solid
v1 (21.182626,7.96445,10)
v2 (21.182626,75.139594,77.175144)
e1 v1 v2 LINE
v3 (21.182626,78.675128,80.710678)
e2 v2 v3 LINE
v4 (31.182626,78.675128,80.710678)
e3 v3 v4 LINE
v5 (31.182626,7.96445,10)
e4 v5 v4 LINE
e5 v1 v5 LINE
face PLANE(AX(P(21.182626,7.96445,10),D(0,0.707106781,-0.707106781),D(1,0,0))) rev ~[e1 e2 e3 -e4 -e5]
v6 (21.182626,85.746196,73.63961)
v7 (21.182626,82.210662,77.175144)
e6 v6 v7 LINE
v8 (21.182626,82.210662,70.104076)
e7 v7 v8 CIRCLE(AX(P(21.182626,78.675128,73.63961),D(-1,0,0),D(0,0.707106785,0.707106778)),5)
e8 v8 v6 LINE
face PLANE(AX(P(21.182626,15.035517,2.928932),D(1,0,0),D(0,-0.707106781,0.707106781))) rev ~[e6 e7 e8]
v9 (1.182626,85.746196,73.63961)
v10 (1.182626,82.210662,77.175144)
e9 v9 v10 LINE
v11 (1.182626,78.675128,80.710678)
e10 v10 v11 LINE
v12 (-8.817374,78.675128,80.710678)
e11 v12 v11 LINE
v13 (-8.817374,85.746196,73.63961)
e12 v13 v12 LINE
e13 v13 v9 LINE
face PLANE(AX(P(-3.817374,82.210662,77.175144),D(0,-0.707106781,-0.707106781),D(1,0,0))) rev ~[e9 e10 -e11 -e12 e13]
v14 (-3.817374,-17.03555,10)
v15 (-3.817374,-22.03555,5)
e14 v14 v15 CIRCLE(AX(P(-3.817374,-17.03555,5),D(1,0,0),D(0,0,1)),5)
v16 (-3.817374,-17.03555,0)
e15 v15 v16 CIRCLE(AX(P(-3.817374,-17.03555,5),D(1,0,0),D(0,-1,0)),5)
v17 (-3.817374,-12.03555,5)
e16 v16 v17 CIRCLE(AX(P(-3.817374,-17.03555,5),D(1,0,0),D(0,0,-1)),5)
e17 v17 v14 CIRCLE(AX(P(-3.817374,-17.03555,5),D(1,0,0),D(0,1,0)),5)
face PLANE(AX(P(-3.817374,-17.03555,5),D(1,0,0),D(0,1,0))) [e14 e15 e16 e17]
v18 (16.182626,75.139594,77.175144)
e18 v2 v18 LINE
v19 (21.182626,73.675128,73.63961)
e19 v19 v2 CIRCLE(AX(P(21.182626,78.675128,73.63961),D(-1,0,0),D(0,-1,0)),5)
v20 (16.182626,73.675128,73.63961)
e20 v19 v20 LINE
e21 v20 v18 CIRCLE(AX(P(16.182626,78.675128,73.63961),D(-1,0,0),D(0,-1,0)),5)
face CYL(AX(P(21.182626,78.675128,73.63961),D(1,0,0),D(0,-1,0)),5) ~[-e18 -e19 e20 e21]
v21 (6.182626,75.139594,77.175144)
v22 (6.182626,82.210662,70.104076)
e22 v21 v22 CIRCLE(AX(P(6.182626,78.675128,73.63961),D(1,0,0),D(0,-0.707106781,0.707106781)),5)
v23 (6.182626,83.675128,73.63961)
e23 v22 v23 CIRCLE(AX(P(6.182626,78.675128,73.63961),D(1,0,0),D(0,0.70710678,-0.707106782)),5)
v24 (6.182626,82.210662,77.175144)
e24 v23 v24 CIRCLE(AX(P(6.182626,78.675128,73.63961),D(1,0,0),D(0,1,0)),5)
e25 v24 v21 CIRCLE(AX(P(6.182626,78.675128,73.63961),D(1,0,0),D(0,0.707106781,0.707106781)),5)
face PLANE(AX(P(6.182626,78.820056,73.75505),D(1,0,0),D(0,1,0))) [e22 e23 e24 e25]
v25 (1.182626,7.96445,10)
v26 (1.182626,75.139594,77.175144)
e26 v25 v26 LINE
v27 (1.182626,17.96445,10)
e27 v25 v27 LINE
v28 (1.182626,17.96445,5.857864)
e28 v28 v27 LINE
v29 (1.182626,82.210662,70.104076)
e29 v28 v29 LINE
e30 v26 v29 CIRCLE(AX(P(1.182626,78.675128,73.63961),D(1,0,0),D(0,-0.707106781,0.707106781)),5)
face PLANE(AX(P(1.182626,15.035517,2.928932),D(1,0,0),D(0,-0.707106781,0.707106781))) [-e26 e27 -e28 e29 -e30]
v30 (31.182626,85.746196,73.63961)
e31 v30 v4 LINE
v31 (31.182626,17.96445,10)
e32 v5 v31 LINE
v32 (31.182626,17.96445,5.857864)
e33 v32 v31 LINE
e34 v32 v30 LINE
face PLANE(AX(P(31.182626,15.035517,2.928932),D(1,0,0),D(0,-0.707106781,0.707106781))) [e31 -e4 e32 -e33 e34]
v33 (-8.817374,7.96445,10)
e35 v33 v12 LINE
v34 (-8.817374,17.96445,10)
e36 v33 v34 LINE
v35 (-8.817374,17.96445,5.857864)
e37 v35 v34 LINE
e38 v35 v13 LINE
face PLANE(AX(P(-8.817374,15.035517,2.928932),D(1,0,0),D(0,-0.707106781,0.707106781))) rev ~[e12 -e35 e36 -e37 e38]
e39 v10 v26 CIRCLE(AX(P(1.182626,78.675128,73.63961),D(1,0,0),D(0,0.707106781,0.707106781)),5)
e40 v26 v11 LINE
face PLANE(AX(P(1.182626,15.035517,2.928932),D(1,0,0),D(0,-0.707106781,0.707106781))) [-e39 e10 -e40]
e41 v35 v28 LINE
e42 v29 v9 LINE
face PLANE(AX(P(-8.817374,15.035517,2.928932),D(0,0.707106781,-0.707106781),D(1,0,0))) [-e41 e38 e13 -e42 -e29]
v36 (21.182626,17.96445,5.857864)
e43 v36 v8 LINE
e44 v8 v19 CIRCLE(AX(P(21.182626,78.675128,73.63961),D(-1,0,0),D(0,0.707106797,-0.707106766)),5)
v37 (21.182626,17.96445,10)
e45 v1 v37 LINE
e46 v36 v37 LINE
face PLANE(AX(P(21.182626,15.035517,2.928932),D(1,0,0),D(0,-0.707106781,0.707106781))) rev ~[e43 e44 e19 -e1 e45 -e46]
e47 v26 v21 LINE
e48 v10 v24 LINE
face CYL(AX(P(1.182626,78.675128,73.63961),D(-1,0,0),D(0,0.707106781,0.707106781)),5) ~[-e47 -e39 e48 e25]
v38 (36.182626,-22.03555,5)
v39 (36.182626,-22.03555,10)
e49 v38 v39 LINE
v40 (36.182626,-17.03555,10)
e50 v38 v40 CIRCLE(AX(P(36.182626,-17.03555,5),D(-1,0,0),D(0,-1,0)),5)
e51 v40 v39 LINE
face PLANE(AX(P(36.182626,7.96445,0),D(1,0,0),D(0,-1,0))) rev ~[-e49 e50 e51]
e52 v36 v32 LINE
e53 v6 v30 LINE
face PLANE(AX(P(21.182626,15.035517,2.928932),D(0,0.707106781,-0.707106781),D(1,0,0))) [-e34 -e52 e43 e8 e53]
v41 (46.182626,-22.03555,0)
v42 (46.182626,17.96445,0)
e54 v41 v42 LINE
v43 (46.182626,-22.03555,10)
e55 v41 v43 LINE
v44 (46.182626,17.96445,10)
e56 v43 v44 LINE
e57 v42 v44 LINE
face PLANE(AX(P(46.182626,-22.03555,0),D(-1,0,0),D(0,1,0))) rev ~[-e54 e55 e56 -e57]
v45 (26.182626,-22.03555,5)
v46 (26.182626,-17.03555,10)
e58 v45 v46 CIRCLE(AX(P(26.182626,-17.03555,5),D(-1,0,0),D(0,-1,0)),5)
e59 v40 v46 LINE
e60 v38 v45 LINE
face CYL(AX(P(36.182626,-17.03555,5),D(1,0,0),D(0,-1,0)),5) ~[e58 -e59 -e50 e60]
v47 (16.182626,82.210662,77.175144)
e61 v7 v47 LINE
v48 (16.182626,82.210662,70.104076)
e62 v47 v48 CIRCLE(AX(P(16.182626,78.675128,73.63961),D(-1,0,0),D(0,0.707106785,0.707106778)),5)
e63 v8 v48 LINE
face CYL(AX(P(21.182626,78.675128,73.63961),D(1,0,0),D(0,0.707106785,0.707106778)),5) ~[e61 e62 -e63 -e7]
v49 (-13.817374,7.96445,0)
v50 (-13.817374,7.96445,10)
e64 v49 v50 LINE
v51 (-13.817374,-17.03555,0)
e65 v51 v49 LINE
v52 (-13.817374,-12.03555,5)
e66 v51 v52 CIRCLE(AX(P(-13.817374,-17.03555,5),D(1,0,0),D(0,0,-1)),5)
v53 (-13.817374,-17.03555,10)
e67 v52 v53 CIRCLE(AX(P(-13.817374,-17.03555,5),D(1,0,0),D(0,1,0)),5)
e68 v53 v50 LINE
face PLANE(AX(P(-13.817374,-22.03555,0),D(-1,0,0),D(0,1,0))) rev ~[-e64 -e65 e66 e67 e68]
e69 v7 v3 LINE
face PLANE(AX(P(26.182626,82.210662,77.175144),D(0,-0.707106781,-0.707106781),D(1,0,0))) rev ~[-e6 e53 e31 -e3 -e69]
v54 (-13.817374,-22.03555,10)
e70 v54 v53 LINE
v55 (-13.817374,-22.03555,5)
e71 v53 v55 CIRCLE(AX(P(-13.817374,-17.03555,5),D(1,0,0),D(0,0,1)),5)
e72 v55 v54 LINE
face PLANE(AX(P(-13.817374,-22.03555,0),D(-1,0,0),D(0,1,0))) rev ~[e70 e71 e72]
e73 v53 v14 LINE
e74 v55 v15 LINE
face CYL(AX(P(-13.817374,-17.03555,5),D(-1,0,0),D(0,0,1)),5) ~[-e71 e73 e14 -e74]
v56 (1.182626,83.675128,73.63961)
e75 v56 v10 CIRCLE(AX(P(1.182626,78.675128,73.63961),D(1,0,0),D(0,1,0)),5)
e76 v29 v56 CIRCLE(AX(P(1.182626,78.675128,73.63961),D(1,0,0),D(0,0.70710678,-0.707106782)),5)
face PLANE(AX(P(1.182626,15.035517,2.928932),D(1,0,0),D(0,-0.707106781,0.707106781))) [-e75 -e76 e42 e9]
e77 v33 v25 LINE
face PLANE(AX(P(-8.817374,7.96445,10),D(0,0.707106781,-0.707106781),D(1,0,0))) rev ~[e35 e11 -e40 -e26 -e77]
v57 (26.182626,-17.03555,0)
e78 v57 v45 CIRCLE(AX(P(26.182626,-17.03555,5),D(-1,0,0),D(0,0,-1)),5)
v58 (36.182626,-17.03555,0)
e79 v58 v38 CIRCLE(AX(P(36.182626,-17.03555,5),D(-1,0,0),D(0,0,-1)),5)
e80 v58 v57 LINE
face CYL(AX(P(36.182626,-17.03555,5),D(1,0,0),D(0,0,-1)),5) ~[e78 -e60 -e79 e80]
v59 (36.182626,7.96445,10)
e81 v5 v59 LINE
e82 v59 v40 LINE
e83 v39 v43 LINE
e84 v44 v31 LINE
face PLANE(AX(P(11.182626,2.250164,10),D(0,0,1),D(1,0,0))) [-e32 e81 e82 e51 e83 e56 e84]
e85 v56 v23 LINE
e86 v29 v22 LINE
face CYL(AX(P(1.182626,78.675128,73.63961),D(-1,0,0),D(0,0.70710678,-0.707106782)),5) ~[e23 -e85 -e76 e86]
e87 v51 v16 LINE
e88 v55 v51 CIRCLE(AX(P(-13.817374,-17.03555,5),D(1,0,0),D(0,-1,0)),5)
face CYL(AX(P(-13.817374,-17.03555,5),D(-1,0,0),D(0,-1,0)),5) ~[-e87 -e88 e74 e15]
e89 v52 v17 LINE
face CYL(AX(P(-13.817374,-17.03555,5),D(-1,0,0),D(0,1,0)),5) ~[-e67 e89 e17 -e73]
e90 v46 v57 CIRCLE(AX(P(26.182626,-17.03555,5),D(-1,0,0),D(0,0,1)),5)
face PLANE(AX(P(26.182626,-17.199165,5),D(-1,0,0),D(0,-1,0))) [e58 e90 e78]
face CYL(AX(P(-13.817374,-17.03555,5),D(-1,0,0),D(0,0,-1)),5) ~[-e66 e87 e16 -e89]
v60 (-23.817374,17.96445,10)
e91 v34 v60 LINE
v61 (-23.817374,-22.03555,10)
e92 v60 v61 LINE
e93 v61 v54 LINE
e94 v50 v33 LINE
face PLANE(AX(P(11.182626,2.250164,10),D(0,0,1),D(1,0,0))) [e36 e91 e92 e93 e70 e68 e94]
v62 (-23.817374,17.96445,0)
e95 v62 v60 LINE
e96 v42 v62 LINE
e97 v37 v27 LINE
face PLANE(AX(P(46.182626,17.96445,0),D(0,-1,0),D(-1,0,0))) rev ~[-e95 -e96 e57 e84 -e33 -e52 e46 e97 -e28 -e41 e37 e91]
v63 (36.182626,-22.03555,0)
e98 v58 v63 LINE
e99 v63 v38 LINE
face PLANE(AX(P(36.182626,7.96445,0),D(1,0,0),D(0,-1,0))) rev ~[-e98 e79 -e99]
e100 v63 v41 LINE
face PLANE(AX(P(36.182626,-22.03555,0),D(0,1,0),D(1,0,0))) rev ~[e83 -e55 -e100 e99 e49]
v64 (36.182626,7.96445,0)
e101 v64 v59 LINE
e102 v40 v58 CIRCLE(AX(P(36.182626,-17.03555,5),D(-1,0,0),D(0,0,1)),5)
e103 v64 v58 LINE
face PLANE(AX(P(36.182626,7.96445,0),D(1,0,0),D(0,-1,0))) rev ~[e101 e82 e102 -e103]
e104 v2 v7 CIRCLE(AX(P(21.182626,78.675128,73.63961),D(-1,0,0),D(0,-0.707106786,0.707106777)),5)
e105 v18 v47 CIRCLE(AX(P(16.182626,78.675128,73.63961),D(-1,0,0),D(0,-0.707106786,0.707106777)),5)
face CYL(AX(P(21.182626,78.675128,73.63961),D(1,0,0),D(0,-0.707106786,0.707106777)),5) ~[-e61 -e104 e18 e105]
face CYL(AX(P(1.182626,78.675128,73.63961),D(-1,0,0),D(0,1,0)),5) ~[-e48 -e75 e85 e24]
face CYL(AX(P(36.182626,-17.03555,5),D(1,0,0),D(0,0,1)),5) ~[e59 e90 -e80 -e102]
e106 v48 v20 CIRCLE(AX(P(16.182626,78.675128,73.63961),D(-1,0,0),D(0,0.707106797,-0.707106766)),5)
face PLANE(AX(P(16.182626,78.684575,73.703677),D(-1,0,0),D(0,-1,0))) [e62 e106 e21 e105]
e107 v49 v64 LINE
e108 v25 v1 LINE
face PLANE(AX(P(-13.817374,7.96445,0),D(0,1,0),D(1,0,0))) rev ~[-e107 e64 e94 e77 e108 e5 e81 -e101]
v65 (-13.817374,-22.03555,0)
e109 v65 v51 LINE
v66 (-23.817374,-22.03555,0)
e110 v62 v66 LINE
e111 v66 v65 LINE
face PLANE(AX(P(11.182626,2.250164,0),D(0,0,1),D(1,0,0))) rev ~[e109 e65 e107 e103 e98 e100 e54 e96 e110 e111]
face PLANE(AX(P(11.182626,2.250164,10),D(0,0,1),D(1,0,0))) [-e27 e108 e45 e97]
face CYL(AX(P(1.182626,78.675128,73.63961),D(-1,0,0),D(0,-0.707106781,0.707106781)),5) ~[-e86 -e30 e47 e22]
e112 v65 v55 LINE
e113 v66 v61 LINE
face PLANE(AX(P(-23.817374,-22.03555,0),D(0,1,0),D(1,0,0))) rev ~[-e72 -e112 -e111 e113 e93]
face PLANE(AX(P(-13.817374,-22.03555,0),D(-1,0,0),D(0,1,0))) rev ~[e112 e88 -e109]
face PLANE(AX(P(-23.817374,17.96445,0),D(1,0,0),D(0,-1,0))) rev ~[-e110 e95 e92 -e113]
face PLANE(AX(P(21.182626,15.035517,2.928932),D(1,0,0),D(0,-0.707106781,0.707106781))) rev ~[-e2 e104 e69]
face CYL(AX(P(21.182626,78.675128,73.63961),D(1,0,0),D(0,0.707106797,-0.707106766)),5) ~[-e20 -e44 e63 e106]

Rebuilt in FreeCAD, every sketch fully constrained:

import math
import FreeCAD as App
import Part
import Sketcher


def add_polygon(sketch, points):
    """Adds a closed chain of lines whose ends are joined by coincident constraints."""
    first, n = sketch.GeometryCount, len(points)
    for a, b in zip(points, points[1:] + points[:1]):
        sketch.addGeometry(Part.LineSegment(App.Vector(*a, 0), App.Vector(*b, 0)), False)
    for i in range(n):
        sketch.addConstraint(Sketcher.Constraint("Coincident", first + i, 2, first + (i + 1) % n, 1))

doc = App.newDocument("Part")
body = doc.addObject("PartDesign::Body", "Body")

# Sketch on XY plane
sketch1 = doc.addObject("Sketcher::SketchObject", "Sketch")
body.addObject(sketch1)
sketch1.AttachmentSupport = (doc.XY_Plane, [""])
sketch1.MapMode = "FlatFace"
add_polygon(sketch1, [(-23.817374, 17.96445), (-23.817374, -22.03555), (-13.817374, -22.03555), (-13.817374, 7.96445), (36.182626, 7.96445), (36.182626, -22.03555), (46.182626, -22.03555), (46.182626, 17.96445)])  # lines 0-7
sketch1.addConstraint([
    Sketcher.Constraint("Vertical", 0),
    Sketcher.Constraint("Horizontal", 1),
    Sketcher.Constraint("Vertical", 2),
    Sketcher.Constraint("Horizontal", 3),
    Sketcher.Constraint("Vertical", 4),
    Sketcher.Constraint("Horizontal", 5),
    Sketcher.Constraint("Vertical", 6),
    Sketcher.Constraint("Horizontal", 7),
    Sketcher.Constraint("Horizontal", 1, 2, 4, 2),
    Sketcher.Constraint("Equal", 1, 5),
    Sketcher.Constraint("DistanceX", 1, 1, 1, 2, 10.0),
    Sketcher.Constraint("DistanceX", 3, 1, 3, 2, 50.0),
    Sketcher.Constraint("DistanceY", 0, 2, 0, 1, 40.0),
    Sketcher.Constraint("DistanceY", 2, 1, 2, 2, 30.0),
    Sketcher.Constraint("DistanceY", 0, 2, -1, 1, 22.03555),
    Sketcher.Constraint("DistanceX", 0, 2, -1, 1, 23.817374),
])
pad1 = doc.addObject("PartDesign::Pad", "Pad")
body.addObject(pad1)
pad1.Profile = sketch1
pad1.Length = 10

# Sketch on YZ plane
sketch2 = doc.addObject("Sketcher::SketchObject", "Sketch001")
body.addObject(sketch2)
sketch2.AttachmentSupport = (doc.YZ_Plane, [""])
sketch2.MapMode = "FlatFace"
sketch2.AttachmentOffset = App.Placement(App.Vector(0, 0, -13.817374), App.Rotation())
sketch2.addGeometry([
    Part.ArcOfCircle(Part.Circle(App.Vector(-17.03555, 5, 0), App.Vector(0, 0, 1), 5), math.radians(-90), math.radians(0)),
    Part.ArcOfCircle(Part.Circle(App.Vector(-17.03555, 5, 0), App.Vector(0, 0, 1), 5), math.radians(0), math.radians(90)),
    Part.ArcOfCircle(Part.Circle(App.Vector(-17.03555, 5, 0), App.Vector(0, 0, 1), 5), math.radians(90), math.radians(180)),
    Part.ArcOfCircle(Part.Circle(App.Vector(-17.03555, 5, 0), App.Vector(0, 0, 1), 5), math.radians(180), math.radians(270)),
], False)
sketch2.addConstraint([
    Sketcher.Constraint("Tangent", 0, 2, 1, 1),
    Sketcher.Constraint("Tangent", 1, 2, 2, 1),
    Sketcher.Constraint("Tangent", 2, 2, 3, 1),
    Sketcher.Constraint("Tangent", 3, 2, 0, 1),
    Sketcher.Constraint("Equal", 0, 1),
    Sketcher.Constraint("PointOnObject", 3, 2, -1),
    Sketcher.Constraint("Horizontal", 3, 3, 0, 2),
    Sketcher.Constraint("Horizontal", 0, 2, 2, 2),
    Sketcher.Constraint("Vertical", 3, 3, 1, 2),
    Sketcher.Constraint("Vertical", 1, 2, 3, 2),
    Sketcher.Constraint("Radius", 0, 5.0),
    Sketcher.Constraint("DistanceX", 0, 3, -1, 1, 17.03555),
])
pad2 = doc.addObject("PartDesign::Pad", "Pad001")
body.addObject(pad2)
pad2.Profile = sketch2
pad2.Length = 10

# Sketch on YZ plane
sketch3 = doc.addObject("Sketcher::SketchObject", "Sketch002")
body.addObject(sketch3)
sketch3.AttachmentSupport = (doc.YZ_Plane, [""])
sketch3.MapMode = "FlatFace"
sketch3.AttachmentOffset = App.Placement(App.Vector(0, 0, 36.182626), App.Rotation())
sketch3.addGeometry([
    Part.ArcOfCircle(Part.Circle(App.Vector(-17.03555, 5, 0), App.Vector(0, 0, 1), 5), math.radians(180), math.radians(270)),
    Part.ArcOfCircle(Part.Circle(App.Vector(-17.03555, 5, 0), App.Vector(0, 0, 1), 5), math.radians(90), math.radians(180)),
    Part.ArcOfCircle(Part.Circle(App.Vector(-17.03555, 5, 0), App.Vector(0, 0, 1), 5), math.radians(-90), math.radians(90)),
], False)
sketch3.addConstraint([
    Sketcher.Constraint("Tangent", 0, 1, 1, 2),
    Sketcher.Constraint("Tangent", 1, 1, 2, 2),
    Sketcher.Constraint("Tangent", 2, 1, 0, 2),
    Sketcher.Constraint("PointOnObject", 2, 1, -1),
    Sketcher.Constraint("Horizontal", 2, 3, 0, 1),
    Sketcher.Constraint("Vertical", 2, 3, 1, 1),
    Sketcher.Constraint("Vertical", 1, 1, 2, 1),
    Sketcher.Constraint("Radius", 0, 5.0),
    Sketcher.Constraint("DistanceX", 0, 3, -1, 1, 17.03555),
])
pad3 = doc.addObject("PartDesign::Pad", "Pad002")
body.addObject(pad3)
pad3.Profile = sketch3
pad3.Length = 10
pad3.Reversed = True

# Sketch on an angled plane
sketch4 = doc.addObject("Sketcher::SketchObject", "Sketch003")
body.addObject(sketch4)
sketch4.Placement = App.Placement(App.Vector(0, 8.982225, 8.982225), App.Rotation(App.Vector(1, 0, 0), App.Vector(0, -0.707106781, 0.707106781), App.Vector(0, -0.707106781, -0.707106781), "ZXY"))
add_polygon(sketch4, [(21.182626, 1.439351), (21.182626, -8.560649), (31.182626, -8.560649), (31.182626, 1.439351)])  # lines 0-3
add_polygon(sketch4, [(-8.817374, 1.439351), (-8.817374, -8.560649), (1.182626, -8.560649), (1.182626, 1.439351)])  # lines 4-7
sketch4.addConstraint([
    Sketcher.Constraint("Vertical", 0),
    Sketcher.Constraint("Horizontal", 1),
    Sketcher.Constraint("Vertical", 2),
    Sketcher.Constraint("Horizontal", 3),
    Sketcher.Constraint("Vertical", 4),
    Sketcher.Constraint("Horizontal", 5),
    Sketcher.Constraint("Vertical", 6),
    Sketcher.Constraint("Horizontal", 7),
    Sketcher.Constraint("Horizontal", 1, 2, 4, 2),
    Sketcher.Constraint("Horizontal", 3, 2, 6, 2),
    Sketcher.Constraint("Equal", 3, 5),
    Sketcher.Constraint("Equal", 7, 0),
    Sketcher.Constraint("DistanceX", 1, 1, 1, 2, 10.0),
    Sketcher.Constraint("DistanceX", 4, 2, 0, 2, 30.0),
    Sketcher.Constraint("DistanceY", 0, 2, -1, 1, 8.560649),
    Sketcher.Constraint("DistanceX", -1, 1, 0, 2, 21.182626),
])
pad4 = doc.addObject("PartDesign::Pad", "Pad003")
body.addObject(pad4)
pad4.Profile = sketch4
pad4.Length = 100
pad4.Reversed = True

# Sketch on YZ plane
sketch5 = doc.addObject("Sketcher::SketchObject", "Sketch004")
body.addObject(sketch5)
sketch5.AttachmentSupport = (doc.YZ_Plane, [""])
sketch5.MapMode = "FlatFace"
sketch5.AttachmentOffset = App.Placement(App.Vector(0, 0, 1.182626), App.Rotation())
sketch5.addGeometry([
    Part.ArcOfCircle(Part.Circle(App.Vector(78.675128, 73.63961, 0), App.Vector(0, 0, 1), 5), math.radians(-45), math.radians(0)),
    Part.ArcOfCircle(Part.Circle(App.Vector(78.675128, 73.63961, 0), App.Vector(0, 0, 1), 5), math.radians(0), math.radians(45)),
    Part.ArcOfCircle(Part.Circle(App.Vector(78.675128, 73.63961, 0), App.Vector(0, 0, 1), 5), math.radians(45), math.radians(135)),
    Part.ArcOfCircle(Part.Circle(App.Vector(78.675128, 73.63961, 0), App.Vector(0, 0, 1), 5), math.radians(135), math.radians(315)),
], False)
sketch5.addConstraint([
    Sketcher.Constraint("Tangent", 0, 2, 1, 1),
    Sketcher.Constraint("Tangent", 1, 2, 2, 1),
    Sketcher.Constraint("Tangent", 2, 2, 3, 1),
    Sketcher.Constraint("Tangent", 3, 2, 0, 1),
    Sketcher.Constraint("Equal", 0, 1),
    Sketcher.Constraint("Horizontal", 3, 3, 0, 2),
    Sketcher.Constraint("Horizontal", 1, 2, 2, 2),
    Sketcher.Constraint("Vertical", 1, 2, 3, 2),
    Sketcher.Constraint("Radius", 0, 5.0),
    Sketcher.Constraint("DistanceY", -1, 1, 0, 3, 73.63961),
    Sketcher.Constraint("DistanceX", -1, 1, 1, 2, 82.210662),
    Sketcher.Constraint("DistanceX", -1, 1, 0, 3, 78.675128),
])
pad5 = doc.addObject("PartDesign::Pad", "Pad004")
body.addObject(pad5)
pad5.Profile = sketch5
pad5.Length = 5

# Sketch on YZ plane
sketch6 = doc.addObject("Sketcher::SketchObject", "Sketch005")
body.addObject(sketch6)
sketch6.AttachmentSupport = (doc.YZ_Plane, [""])
sketch6.MapMode = "FlatFace"
sketch6.AttachmentOffset = App.Placement(App.Vector(0, 0, 21.182626), App.Rotation())
sketch6.addGeometry([
    Part.ArcOfCircle(Part.Circle(App.Vector(78.675128, 73.63961, 0), App.Vector(0, 0, 1), 5), math.radians(180), math.radians(315.000001)),
    Part.ArcOfCircle(Part.Circle(App.Vector(78.675128, 73.63961, 0), App.Vector(0, 0, 1), 5), math.radians(135), math.radians(180)),
    Part.ArcOfCircle(Part.Circle(App.Vector(78.675128, 73.63961, 0), App.Vector(0, 0, 1), 5), math.radians(45), math.radians(135)),
    Part.ArcOfCircle(Part.Circle(App.Vector(78.675128, 73.63961, 0), App.Vector(0, 0, 1), 5), math.radians(-44.999999), math.radians(45)),
], False)
sketch6.addConstraint([
    Sketcher.Constraint("Tangent", 0, 1, 1, 2),
    Sketcher.Constraint("Tangent", 1, 1, 2, 2),
    Sketcher.Constraint("Tangent", 2, 1, 3, 2),
    Sketcher.Constraint("Tangent", 3, 1, 0, 2),
    Sketcher.Constraint("Equal", 0, 1),
    Sketcher.Constraint("Horizontal", 3, 3, 0, 1),
    Sketcher.Constraint("Horizontal", 1, 1, 2, 1),
    Sketcher.Constraint("Vertical", 2, 1, 3, 1),
    Sketcher.Constraint("Radius", 0, 5.0),
    Sketcher.Constraint("DistanceY", -1, 1, 0, 3, 73.63961),
    Sketcher.Constraint("DistanceX", -1, 1, 2, 1, 82.210662),
    Sketcher.Constraint("DistanceX", -1, 1, 0, 3, 78.675128),
])
pad6 = doc.addObject("PartDesign::Pad", "Pad005")
body.addObject(pad6)
pad6.Profile = sketch6
pad6.Length = 5
pad6.Reversed = True

doc.recompute()
